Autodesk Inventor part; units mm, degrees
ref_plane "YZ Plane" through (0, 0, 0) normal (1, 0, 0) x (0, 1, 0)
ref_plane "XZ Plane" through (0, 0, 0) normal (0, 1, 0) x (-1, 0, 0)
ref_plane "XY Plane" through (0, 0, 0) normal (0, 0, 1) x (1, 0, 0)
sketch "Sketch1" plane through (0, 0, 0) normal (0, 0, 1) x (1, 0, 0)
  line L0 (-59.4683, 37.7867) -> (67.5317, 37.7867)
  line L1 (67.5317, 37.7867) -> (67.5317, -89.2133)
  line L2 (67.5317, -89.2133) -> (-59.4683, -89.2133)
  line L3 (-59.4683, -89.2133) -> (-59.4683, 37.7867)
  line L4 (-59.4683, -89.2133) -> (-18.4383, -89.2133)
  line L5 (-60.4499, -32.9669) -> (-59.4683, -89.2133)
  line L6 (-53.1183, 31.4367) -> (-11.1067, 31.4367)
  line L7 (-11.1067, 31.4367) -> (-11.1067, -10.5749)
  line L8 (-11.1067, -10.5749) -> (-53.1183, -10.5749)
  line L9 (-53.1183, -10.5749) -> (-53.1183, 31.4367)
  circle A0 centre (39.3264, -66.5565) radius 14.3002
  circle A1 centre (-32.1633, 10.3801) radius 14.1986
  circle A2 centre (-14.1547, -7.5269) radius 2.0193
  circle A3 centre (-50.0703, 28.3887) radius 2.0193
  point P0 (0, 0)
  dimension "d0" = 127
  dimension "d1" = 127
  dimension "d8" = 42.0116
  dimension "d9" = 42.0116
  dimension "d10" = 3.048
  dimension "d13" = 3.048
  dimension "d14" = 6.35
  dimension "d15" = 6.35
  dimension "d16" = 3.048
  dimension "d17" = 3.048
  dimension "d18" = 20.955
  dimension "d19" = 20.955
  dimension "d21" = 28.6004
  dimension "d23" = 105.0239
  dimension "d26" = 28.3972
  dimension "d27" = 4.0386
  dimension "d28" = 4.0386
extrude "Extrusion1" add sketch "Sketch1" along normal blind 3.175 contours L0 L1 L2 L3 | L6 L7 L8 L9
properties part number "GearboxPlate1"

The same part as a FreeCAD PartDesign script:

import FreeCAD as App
import Part
import Sketcher

V = App.Vector
Q = App.Units.Quantity


def add_polygon(sketch, points):
    """Adds a closed chain of lines whose ends are joined by coincident constraints."""
    first, n = sketch.GeometryCount, len(points)
    for a, b in zip(points, points[1:] + points[:1]):
        sketch.addGeometry(Part.LineSegment(App.Vector(*a, 0), App.Vector(*b, 0)), False)
    for i in range(n):
        sketch.addConstraint(Sketcher.Constraint("Coincident", first + i, 2, first + (i + 1) % n, 1))

doc = App.newDocument("Part")
body = doc.addObject("PartDesign::Body", "Body")

# Sketch on XY plane
sketch1 = doc.addObject("Sketcher::SketchObject", "Sketch")
body.addObject(sketch1)
sketch1.AttachmentSupport = (doc.XY_Plane, [""])
sketch1.MapMode = "FlatFace"
add_polygon(sketch1, [(67.5, 37.8), (-59.5, 37.8), (-59.5, -89.2), (67.5, -89.2)])  # lines 0-3
sketch1.addGeometry(Part.Circle(V(39.3, -66.6, 0), V(0, 0, 1), 14.3), False)  # 4
sketch1.addGeometry(Part.Circle(V(-50.1, 28.4, 0), V(0, 0, 1), 2), False)  # 5
sketch1.addGeometry(Part.Circle(V(-14.2, -7.5, 0), V(0, 0, 1), 2), False)  # 6
sketch1.addGeometry(Part.Circle(V(-32.2, 10.4, 0), V(0, 0, 1), 14.2), False)  # 7
sketch1.addConstraint(Sketcher.Constraint("Horizontal", 0))
sketch1.addConstraint(Sketcher.Constraint("Vertical", 1))
sketch1.addConstraint(Sketcher.Constraint("Horizontal", 2))
sketch1.addConstraint(Sketcher.Constraint("Vertical", 3))
sketch1.addConstraint(Sketcher.Constraint("Equal", 5, 6))
sketch1.addConstraint(Sketcher.Constraint("Equal", 2, 1))
sketch1.addConstraint(Sketcher.Constraint("DistanceX", 0, 2, 0, 1, Q("5 in")))
sketch1.addConstraint(Sketcher.Constraint("Diameter", 4, Q("1.126 in")))
sketch1.addConstraint(Sketcher.Constraint("Diameter", 5, Q("0.159 in")))
sketch1.addConstraint(Sketcher.Constraint("Diameter", 7, Q("1.118 in")))
sketch1.addConstraint(Sketcher.Constraint("DistanceX", 0, 2, 5, 3, Q("0.37 in")))
sketch1.addConstraint(Sketcher.Constraint("DistanceY", 5, 3, 0, 2, Q("0.37 in")))
sketch1.addConstraint(Sketcher.Constraint("DistanceY", 4, 3, 5, 3, Q("3.738 in")))
sketch1.addConstraint(Sketcher.Constraint("DistanceX", 5, 3, 6, 3, Q("1.414 in")))
sketch1.addConstraint(Sketcher.Constraint("DistanceY", 6, 3, 5, 3, Q("1.414 in")))
sketch1.addConstraint(Sketcher.Constraint("DistanceX", 7, 3, 6, 3, Q("0.709 in")))
sketch1.addConstraint(Sketcher.Constraint("DistanceY", 6, 3, 7, 3, Q("0.705 in")))
sketch1.addConstraint(Sketcher.Constraint("DistanceX", -1, 1, 4, 3, Q("39.3264 mm")))
sketch1.addConstraint(Sketcher.Constraint("DistanceY", 4, 3, -1, 1, Q("66.5565 mm")))
sketch1.addConstraint(Sketcher.Constraint("DistanceX", 5, 3, -1, 1, Q("50.0703 mm")))
pad1 = doc.addObject("PartDesign::Pad", "Pad")
body.addObject(pad1)
pad1.Profile = sketch1
pad1.Length = Q("0.125 in")

doc.recompute()
